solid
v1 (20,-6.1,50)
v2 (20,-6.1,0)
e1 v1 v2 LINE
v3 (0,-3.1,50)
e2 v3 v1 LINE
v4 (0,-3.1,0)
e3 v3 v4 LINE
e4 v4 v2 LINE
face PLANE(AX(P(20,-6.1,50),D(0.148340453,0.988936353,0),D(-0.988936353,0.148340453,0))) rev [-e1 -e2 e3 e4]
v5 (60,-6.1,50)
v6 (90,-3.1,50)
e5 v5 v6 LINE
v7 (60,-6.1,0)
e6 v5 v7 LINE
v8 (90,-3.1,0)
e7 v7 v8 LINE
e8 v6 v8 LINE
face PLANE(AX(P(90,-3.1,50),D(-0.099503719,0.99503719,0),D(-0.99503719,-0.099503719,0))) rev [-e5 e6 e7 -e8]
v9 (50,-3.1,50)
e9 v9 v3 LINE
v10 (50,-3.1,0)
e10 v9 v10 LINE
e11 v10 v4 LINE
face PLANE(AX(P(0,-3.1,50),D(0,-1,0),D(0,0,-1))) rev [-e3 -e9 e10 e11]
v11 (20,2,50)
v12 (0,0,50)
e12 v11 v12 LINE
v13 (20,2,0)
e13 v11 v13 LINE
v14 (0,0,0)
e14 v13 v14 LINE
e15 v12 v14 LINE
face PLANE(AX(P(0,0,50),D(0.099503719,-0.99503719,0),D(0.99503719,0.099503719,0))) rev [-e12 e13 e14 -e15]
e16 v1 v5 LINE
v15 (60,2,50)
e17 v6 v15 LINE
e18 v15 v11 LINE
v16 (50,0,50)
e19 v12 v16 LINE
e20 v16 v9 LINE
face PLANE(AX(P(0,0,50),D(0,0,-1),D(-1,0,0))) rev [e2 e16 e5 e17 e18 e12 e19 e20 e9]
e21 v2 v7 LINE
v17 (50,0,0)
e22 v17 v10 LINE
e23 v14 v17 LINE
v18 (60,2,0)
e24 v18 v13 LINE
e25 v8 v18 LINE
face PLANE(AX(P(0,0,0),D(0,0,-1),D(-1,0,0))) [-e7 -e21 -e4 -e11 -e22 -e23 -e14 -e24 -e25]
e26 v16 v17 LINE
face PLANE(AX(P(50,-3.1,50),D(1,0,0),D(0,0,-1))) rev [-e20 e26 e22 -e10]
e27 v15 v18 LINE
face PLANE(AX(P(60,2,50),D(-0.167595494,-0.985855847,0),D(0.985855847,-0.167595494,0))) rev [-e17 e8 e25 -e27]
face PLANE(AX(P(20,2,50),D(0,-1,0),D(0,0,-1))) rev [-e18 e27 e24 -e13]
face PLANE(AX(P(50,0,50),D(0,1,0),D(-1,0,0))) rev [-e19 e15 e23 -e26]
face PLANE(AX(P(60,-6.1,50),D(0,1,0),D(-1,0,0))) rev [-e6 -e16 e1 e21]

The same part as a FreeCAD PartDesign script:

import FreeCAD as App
import Part
import Sketcher

V = App.Vector


def add_polygon(sketch, points):
    """Adds a closed chain of lines whose ends are joined by coincident constraints."""
    first, n = sketch.GeometryCount, len(points)
    for a, b in zip(points, points[1:] + points[:1]):
        sketch.addGeometry(Part.LineSegment(App.Vector(*a, 0), App.Vector(*b, 0)), False)
    for i in range(n):
        sketch.addConstraint(Sketcher.Constraint("Coincident", first + i, 2, first + (i + 1) % n, 1))

doc = App.newDocument("Part")
body = doc.addObject("PartDesign::Body", "Body")

# Sketch on XY plane
sketch1 = body.newObject("Sketcher::SketchObject", "Sketch")
sketch1.AttachmentSupport = (doc.getObject("XY_Plane"), [""])
sketch1.MapMode = "FlatFace"
add_polygon(sketch1, [(20, 2), (0, 0), (50, 0), (50, -3.1), (0, -3.1), (20, -6.1), (60, -6.1), (90, -3.1), (60, 2)])  # lines 0-8
sketch1.addConstraint([
    Sketcher.Constraint("Horizontal", 1),
    Sketcher.Constraint("Vertical", 2),
    Sketcher.Constraint("Horizontal", 3),
    Sketcher.Constraint("Horizontal", 5),
    Sketcher.Constraint("Horizontal", 8),
    Sketcher.Constraint("Coincident", 0, 2, -1, 1),
    Sketcher.Constraint("PointOnObject", 3, 2, -2),
    Sketcher.Constraint("Parallel", 0, 6),
    Sketcher.Constraint("Horizontal", 3, 2, 6, 2),
    Sketcher.Constraint("Vertical", 5, 2, 7, 2),
    Sketcher.Constraint("Vertical", 4, 2, 8, 2),
    Sketcher.Constraint("DistanceX", 1, 1, 1, 2, 50.0),
    Sketcher.Constraint("DistanceX", 5, 1, 5, 2, 40.0),
    Sketcher.Constraint("DistanceY", 2, 2, 2, 1, 3.1),
    Sketcher.Constraint("DistanceX", -1, 1, 4, 2, 20.0),
    Sketcher.Constraint("DistanceX", -1, 1, 6, 2, 90.0),
    Sketcher.Constraint("DistanceY", -1, 1, 7, 2, 2.0),
])
pad1 = body.newObject("PartDesign::Pad", "Pad")
pad1.Profile = sketch1
pad1.Length = 50

doc.recompute()
